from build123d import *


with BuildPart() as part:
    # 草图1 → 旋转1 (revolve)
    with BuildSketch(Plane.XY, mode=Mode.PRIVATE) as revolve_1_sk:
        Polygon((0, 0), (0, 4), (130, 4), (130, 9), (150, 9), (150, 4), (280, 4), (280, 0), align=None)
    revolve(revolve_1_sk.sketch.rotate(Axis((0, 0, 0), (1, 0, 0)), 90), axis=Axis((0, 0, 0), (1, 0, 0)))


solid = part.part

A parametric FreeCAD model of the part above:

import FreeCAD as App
import Part
import Sketcher

V = App.Vector
Q = App.Units.Quantity

doc = App.newDocument("Part")
body = doc.addObject("PartDesign::Body", "Body")

sketch1 = doc.addObject("Sketcher::SketchObject", "Sketch")
body.addObject(sketch1)
sketch1.AttachmentSupport = (doc.XY_Plane, [""])
sketch1.MapMode = "FlatFace"
sketch1.addGeometry([
    Part.LineSegment(V(0, 4, 0), V(0, 0, 0)),
    Part.LineSegment(V(0, 0, 0), V(280, 0, 0)),
    Part.LineSegment(V(280, 0, 0), V(280, 4, 0)),
    Part.LineSegment(V(280, 4, 0), V(150, 4, 0)),
    Part.LineSegment(V(150, 4, 0), V(150, 9, 0)),
    Part.LineSegment(V(150, 9, 0), V(130, 9, 0)),
    Part.LineSegment(V(130, 9, 0), V(130, 4, 0)),
    Part.LineSegment(V(130, 4, 0), V(0, 4, 0)),
], False)
sketch1.addConstraint([
    Sketcher.Constraint("Coincident", 0, 2, 1, 1),
    Sketcher.Constraint("Coincident", 1, 2, 2, 1),
    Sketcher.Constraint("Coincident", 2, 2, 3, 1),
    Sketcher.Constraint("Coincident", 3, 2, 4, 1),
    Sketcher.Constraint("Coincident", 4, 2, 5, 1),
    Sketcher.Constraint("Coincident", 5, 2, 6, 1),
    Sketcher.Constraint("Coincident", 6, 2, 7, 1),
    Sketcher.Constraint("Coincident", 7, 2, 0, 1),
    Sketcher.Constraint("Vertical", 0),
    Sketcher.Constraint("Horizontal", 1),
    Sketcher.Constraint("Vertical", 2),
    Sketcher.Constraint("Horizontal", 3),
    Sketcher.Constraint("Vertical", 4),
    Sketcher.Constraint("Horizontal", 5),
    Sketcher.Constraint("Vertical", 6),
    Sketcher.Constraint("Horizontal", 7),
    Sketcher.Constraint("Coincident", 0, 2, -1, 1),
    Sketcher.Constraint("Horizontal", 3, 2, 6, 2),
    Sketcher.Constraint("Equal", 3, 7),
    Sketcher.Constraint("DistanceX", 1, 1, 1, 2, Q("280 mm")),
    Sketcher.Constraint("DistanceX", 3, 2, 3, 1, Q("130 mm")),
    Sketcher.Constraint("DistanceY", 0, 2, 0, 1, Q("4 mm")),
    Sketcher.Constraint("DistanceY", 4, 1, 4, 2, Q("5 mm")),
])
revolution = doc.addObject("PartDesign::Revolution", "Revolution")
body.addObject(revolution)
revolution.Profile = sketch1
revolution.ReferenceAxis = (sketch1, ["H_Axis"])
revolution.Angle = 360

doc.recompute()
